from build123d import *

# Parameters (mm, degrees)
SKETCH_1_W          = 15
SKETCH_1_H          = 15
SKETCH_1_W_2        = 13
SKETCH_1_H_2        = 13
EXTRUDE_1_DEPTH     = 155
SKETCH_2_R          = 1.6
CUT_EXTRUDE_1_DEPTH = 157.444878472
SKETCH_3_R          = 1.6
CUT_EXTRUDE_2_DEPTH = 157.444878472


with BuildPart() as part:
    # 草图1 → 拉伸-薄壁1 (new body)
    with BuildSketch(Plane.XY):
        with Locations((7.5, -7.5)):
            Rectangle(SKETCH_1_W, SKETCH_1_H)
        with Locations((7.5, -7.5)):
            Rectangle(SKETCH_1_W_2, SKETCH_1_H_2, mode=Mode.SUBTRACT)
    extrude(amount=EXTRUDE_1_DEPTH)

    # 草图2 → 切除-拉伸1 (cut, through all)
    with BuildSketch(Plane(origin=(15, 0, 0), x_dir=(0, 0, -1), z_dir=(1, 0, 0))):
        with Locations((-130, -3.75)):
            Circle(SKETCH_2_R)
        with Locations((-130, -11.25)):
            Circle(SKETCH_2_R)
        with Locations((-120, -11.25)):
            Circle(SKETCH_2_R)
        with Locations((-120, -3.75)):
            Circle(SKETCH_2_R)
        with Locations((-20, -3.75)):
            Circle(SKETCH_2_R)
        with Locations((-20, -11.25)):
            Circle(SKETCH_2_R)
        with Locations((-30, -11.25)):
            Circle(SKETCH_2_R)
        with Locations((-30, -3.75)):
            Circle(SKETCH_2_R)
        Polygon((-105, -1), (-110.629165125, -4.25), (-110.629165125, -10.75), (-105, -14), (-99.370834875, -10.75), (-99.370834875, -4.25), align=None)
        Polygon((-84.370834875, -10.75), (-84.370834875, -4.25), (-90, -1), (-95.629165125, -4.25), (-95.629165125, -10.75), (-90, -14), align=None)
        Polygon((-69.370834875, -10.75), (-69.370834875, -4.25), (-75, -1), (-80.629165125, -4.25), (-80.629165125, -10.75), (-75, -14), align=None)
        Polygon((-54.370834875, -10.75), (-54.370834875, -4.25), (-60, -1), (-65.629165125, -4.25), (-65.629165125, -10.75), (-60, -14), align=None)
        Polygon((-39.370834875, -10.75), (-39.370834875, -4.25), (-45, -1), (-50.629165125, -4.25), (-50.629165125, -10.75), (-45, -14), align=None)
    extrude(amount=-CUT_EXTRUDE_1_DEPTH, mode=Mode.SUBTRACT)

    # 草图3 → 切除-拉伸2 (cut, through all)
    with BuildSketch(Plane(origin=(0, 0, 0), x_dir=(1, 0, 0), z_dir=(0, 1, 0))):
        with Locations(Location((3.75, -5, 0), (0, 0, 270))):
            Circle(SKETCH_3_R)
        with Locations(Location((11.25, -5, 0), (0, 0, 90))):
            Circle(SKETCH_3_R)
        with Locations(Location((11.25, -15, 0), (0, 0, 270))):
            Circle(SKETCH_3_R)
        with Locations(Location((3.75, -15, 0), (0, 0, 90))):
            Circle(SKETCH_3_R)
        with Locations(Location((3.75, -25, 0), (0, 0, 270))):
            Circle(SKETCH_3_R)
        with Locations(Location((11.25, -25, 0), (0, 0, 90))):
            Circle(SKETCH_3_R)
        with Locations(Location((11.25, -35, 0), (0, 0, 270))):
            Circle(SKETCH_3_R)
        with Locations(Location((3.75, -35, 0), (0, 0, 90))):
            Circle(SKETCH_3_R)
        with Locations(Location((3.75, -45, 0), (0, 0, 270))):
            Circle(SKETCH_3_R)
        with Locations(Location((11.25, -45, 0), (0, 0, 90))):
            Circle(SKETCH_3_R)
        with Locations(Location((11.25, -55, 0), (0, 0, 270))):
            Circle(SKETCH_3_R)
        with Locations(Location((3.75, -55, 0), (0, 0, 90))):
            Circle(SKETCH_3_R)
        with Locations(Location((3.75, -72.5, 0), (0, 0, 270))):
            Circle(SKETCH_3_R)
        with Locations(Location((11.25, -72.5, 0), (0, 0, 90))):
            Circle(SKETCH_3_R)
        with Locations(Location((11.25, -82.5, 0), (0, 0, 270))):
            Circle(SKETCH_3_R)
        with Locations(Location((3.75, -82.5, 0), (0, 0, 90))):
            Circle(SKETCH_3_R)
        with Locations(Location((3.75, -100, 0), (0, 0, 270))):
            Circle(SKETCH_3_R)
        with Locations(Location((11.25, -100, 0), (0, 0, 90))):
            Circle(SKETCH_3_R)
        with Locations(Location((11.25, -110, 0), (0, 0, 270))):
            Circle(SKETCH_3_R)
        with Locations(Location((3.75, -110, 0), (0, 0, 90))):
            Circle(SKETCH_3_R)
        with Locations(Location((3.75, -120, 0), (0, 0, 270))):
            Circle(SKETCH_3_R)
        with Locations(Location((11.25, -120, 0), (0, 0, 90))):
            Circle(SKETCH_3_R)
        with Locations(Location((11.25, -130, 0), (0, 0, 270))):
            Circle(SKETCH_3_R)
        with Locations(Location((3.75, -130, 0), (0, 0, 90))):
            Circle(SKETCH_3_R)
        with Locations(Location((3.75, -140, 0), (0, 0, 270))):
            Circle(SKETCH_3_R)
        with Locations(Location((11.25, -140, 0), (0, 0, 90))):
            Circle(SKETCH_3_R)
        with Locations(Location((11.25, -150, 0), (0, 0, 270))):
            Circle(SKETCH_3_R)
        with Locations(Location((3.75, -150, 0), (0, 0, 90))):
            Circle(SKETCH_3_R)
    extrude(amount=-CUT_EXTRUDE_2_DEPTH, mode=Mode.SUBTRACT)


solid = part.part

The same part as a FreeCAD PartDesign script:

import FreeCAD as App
import Part
import Sketcher
from FreeCAD import Vector
Q = App.Units.Quantity

doc = App.newDocument("Part")
body = doc.addObject("PartDesign::Body", "Body")

# Sketch on XY plane
sketch1 = doc.addObject("Sketcher::SketchObject", "Sketch")
body.addObject(sketch1)
sketch1.AttachmentSupport = (doc.XY_Plane, [""])
sketch1.MapMode = "FlatFace"
sketch1.addGeometry([
    Part.LineSegment(Vector(0, 0, 0), Vector(0, -15, 0)),  # 0
    Part.LineSegment(Vector(0, -15, 0), Vector(15, -15, 0)),  # 1
    Part.LineSegment(Vector(15, -15, 0), Vector(15, 0, 0)),  # 2
    Part.LineSegment(Vector(15, 0, 0), Vector(0, 0, 0)),  # 3
    Part.LineSegment(Vector(14, -14, 0), Vector(1, -14, 0)),  # 4
    Part.LineSegment(Vector(1, -14, 0), Vector(1, -1, 0)),  # 5
    Part.LineSegment(Vector(1, -1, 0), Vector(14, -1, 0)),  # 6
    Part.LineSegment(Vector(14, -1, 0), Vector(14, -14, 0)),  # 7
], False)
sketch1.addConstraint([
    Sketcher.Constraint("Coincident", 0, 2, 1, 1),
    Sketcher.Constraint("Coincident", 1, 2, 2, 1),
    Sketcher.Constraint("Coincident", 2, 2, 3, 1),
    Sketcher.Constraint("Coincident", 3, 2, 0, 1),
    Sketcher.Constraint("Coincident", 4, 2, 5, 1),
    Sketcher.Constraint("Coincident", 5, 2, 6, 1),
    Sketcher.Constraint("Coincident", 6, 2, 7, 1),
    Sketcher.Constraint("Coincident", 7, 2, 4, 1),
    Sketcher.Constraint("Vertical", 0),
    Sketcher.Constraint("Horizontal", 1),
    Sketcher.Constraint("Vertical", 2),
    Sketcher.Constraint("Horizontal", 3),
    Sketcher.Constraint("Horizontal", 4),
    Sketcher.Constraint("Vertical", 5),
    Sketcher.Constraint("Horizontal", 6),
    Sketcher.Constraint("Vertical", 7),
    Sketcher.Constraint("Coincident", 3, 2, -1, 1),
    Sketcher.Constraint("Equal", 3, 0),
    Sketcher.Constraint("Equal", 6, 5),
    Sketcher.Constraint("DistanceX", 1, 1, 1, 2, 15.0),
    Sketcher.Constraint("DistanceX", 4, 2, 4, 1, 13.0),
    Sketcher.Constraint("DistanceX", -1, 1, 4, 2, 1.0),
    Sketcher.Constraint("DistanceY", 4, 2, -1, 1, 14.0),
])
pad1 = doc.addObject("PartDesign::Pad", "Pad")
body.addObject(pad1)
pad1.Profile = sketch1
pad1.Length = 155

# Sketch on YZ plane
sketch2 = doc.addObject("Sketcher::SketchObject", "Sketch001")
body.addObject(sketch2)
sketch2.AttachmentSupport = (doc.YZ_Plane, [""])
sketch2.MapMode = "FlatFace"
sketch2.AttachmentOffset = App.Placement(Vector(0, 0, 15), App.Rotation())
sketch2.addGeometry([
    Part.Circle(Vector(-3.8, 130, 0), Vector(0, 0, 1), 1.6),  # 0
    Part.Circle(Vector(-11.2, 130, 0), Vector(0, 0, 1), 1.6),  # 1
    Part.Circle(Vector(-11.2, 120, 0), Vector(0, 0, 1), 1.6),  # 2
    Part.Circle(Vector(-3.8, 120, 0), Vector(0, 0, 1), 1.6),  # 3
    Part.Circle(Vector(-3.8, 20, 0), Vector(0, 0, 1), 1.6),  # 4
    Part.Circle(Vector(-11.2, 20, 0), Vector(0, 0, 1), 1.6),  # 5
    Part.Circle(Vector(-11.2, 30, 0), Vector(0, 0, 1), 1.6),  # 6
    Part.Circle(Vector(-3.8, 30, 0), Vector(0, 0, 1), 1.6),  # 7
    Part.LineSegment(Vector(-1, 105, 0), Vector(-4.2, 110.6, 0)),  # 8
    Part.LineSegment(Vector(-4.2, 110.6, 0), Vector(-10.8, 110.6, 0)),  # 9
    Part.LineSegment(Vector(-10.8, 110.6, 0), Vector(-14, 105, 0)),  # 10
    Part.LineSegment(Vector(-14, 105, 0), Vector(-10.8, 99.4, 0)),  # 11
    Part.LineSegment(Vector(-10.8, 99.4, 0), Vector(-4.2, 99.4, 0)),  # 12
    Part.LineSegment(Vector(-4.2, 99.4, 0), Vector(-1, 105, 0)),  # 13
    Part.LineSegment(Vector(-10.8, 84.4, 0), Vector(-4.2, 84.4, 0)),  # 14
    Part.LineSegment(Vector(-4.2, 84.4, 0), Vector(-1, 90, 0)),  # 15
    Part.LineSegment(Vector(-1, 90, 0), Vector(-4.2, 95.6, 0)),  # 16
    Part.LineSegment(Vector(-4.2, 95.6, 0), Vector(-10.8, 95.6, 0)),  # 17
    Part.LineSegment(Vector(-10.8, 95.6, 0), Vector(-14, 90, 0)),  # 18
    Part.LineSegment(Vector(-14, 90, 0), Vector(-10.8, 84.4, 0)),  # 19
    Part.LineSegment(Vector(-10.8, 69.4, 0), Vector(-4.2, 69.4, 0)),  # 20
    Part.LineSegment(Vector(-4.2, 69.4, 0), Vector(-1, 75, 0)),  # 21
    Part.LineSegment(Vector(-1, 75, 0), Vector(-4.2, 80.6, 0)),  # 22
    Part.LineSegment(Vector(-4.2, 80.6, 0), Vector(-10.8, 80.6, 0)),  # 23
    Part.LineSegment(Vector(-10.8, 80.6, 0), Vector(-14, 75, 0)),  # 24
    Part.LineSegment(Vector(-14, 75, 0), Vector(-10.8, 69.4, 0)),  # 25
    Part.LineSegment(Vector(-10.8, 54.4, 0), Vector(-4.2, 54.4, 0)),  # 26
    Part.LineSegment(Vector(-4.2, 54.4, 0), Vector(-1, 60, 0)),  # 27
    Part.LineSegment(Vector(-1, 60, 0), Vector(-4.2, 65.6, 0)),  # 28
    Part.LineSegment(Vector(-4.2, 65.6, 0), Vector(-10.8, 65.6, 0)),  # 29
    Part.LineSegment(Vector(-10.8, 65.6, 0), Vector(-14, 60, 0)),  # 30
    Part.LineSegment(Vector(-14, 60, 0), Vector(-10.8, 54.4, 0)),  # 31
    Part.LineSegment(Vector(-10.8, 39.4, 0), Vector(-4.2, 39.4, 0)),  # 32
    Part.LineSegment(Vector(-4.2, 39.4, 0), Vector(-1, 45, 0)),  # 33
    Part.LineSegment(Vector(-1, 45, 0), Vector(-4.2, 50.6, 0)),  # 34
    Part.LineSegment(Vector(-4.2, 50.6, 0), Vector(-10.8, 50.6, 0)),  # 35
    Part.LineSegment(Vector(-10.8, 50.6, 0), Vector(-14, 45, 0)),  # 36
    Part.LineSegment(Vector(-14, 45, 0), Vector(-10.8, 39.4, 0)),  # 37
], False)
sketch2.addConstraint([
    Sketcher.Constraint("Coincident", 8, 2, 9, 1),
    Sketcher.Constraint("Coincident", 9, 2, 10, 1),
    Sketcher.Constraint("Coincident", 10, 2, 11, 1),
    Sketcher.Constraint("Coincident", 11, 2, 12, 1),
    Sketcher.Constraint("Coincident", 12, 2, 13, 1),
    Sketcher.Constraint("Coincident", 13, 2, 8, 1),
    Sketcher.Constraint("Coincident", 14, 2, 15, 1),
    Sketcher.Constraint("Coincident", 15, 2, 16, 1),
    Sketcher.Constraint("Coincident", 16, 2, 17, 1),
    Sketcher.Constraint("Coincident", 17, 2, 18, 1),
    Sketcher.Constraint("Coincident", 18, 2, 19, 1),
    Sketcher.Constraint("Coincident", 19, 2, 14, 1),
    Sketcher.Constraint("Coincident", 20, 2, 21, 1),
    Sketcher.Constraint("Coincident", 21, 2, 22, 1),
    Sketcher.Constraint("Coincident", 22, 2, 23, 1),
    Sketcher.Constraint("Coincident", 23, 2, 24, 1),
    Sketcher.Constraint("Coincident", 24, 2, 25, 1),
    Sketcher.Constraint("Coincident", 25, 2, 20, 1),
    Sketcher.Constraint("Coincident", 26, 2, 27, 1),
    Sketcher.Constraint("Coincident", 27, 2, 28, 1),
    Sketcher.Constraint("Coincident", 28, 2, 29, 1),
    Sketcher.Constraint("Coincident", 29, 2, 30, 1),
    Sketcher.Constraint("Coincident", 30, 2, 31, 1),
    Sketcher.Constraint("Coincident", 31, 2, 26, 1),
    Sketcher.Constraint("Coincident", 32, 2, 33, 1),
    Sketcher.Constraint("Coincident", 33, 2, 34, 1),
    Sketcher.Constraint("Coincident", 34, 2, 35, 1),
    Sketcher.Constraint("Coincident", 35, 2, 36, 1),
    Sketcher.Constraint("Coincident", 36, 2, 37, 1),
    Sketcher.Constraint("Coincident", 37, 2, 32, 1),
    Sketcher.Constraint("Horizontal", 9),
    Sketcher.Constraint("Horizontal", 12),
    Sketcher.Constraint("Horizontal", 14),
    Sketcher.Constraint("Horizontal", 17),
    Sketcher.Constraint("Horizontal", 20),
    Sketcher.Constraint("Horizontal", 23),
    Sketcher.Constraint("Horizontal", 26),
    Sketcher.Constraint("Horizontal", 29),
    Sketcher.Constraint("Horizontal", 32),
    Sketcher.Constraint("Horizontal", 35),
    Sketcher.Constraint("Equal", 0, 1),
    Sketcher.Constraint("Equal", 1, 2),
    Sketcher.Constraint("Equal", 2, 3),
    Sketcher.Constraint("Equal", 3, 4),
    Sketcher.Constraint("Equal", 4, 5),
    Sketcher.Constraint("Equal", 5, 6),
    Sketcher.Constraint("Equal", 6, 7),
    Sketcher.Constraint("Parallel", 8, 11),
    Sketcher.Constraint("Parallel", 10, 13),
    Sketcher.Constraint("Parallel", 13, 15),
    Sketcher.Constraint("Parallel", 11, 16),
    Sketcher.Constraint("Parallel", 15, 18),
    Sketcher.Constraint("Parallel", 16, 19),
    Sketcher.Constraint("Parallel", 18, 21),
    Sketcher.Constraint("Parallel", 19, 22),
    Sketcher.Constraint("Parallel", 21, 24),
    Sketcher.Constraint("Parallel", 22, 25),
    Sketcher.Constraint("Parallel", 24, 27),
    Sketcher.Constraint("Parallel", 25, 28),
    Sketcher.Constraint("Parallel", 27, 30),
    Sketcher.Constraint("Parallel", 28, 31),
    Sketcher.Constraint("Parallel", 30, 33),
    Sketcher.Constraint("Parallel", 31, 34),
    Sketcher.Constraint("Parallel", 33, 36),
    Sketcher.Constraint("Parallel", 34, 37),
    Sketcher.Constraint("Horizontal", 0, 3, 1, 3),
    Sketcher.Constraint("Horizontal", 2, 3, 3, 3),
    Sketcher.Constraint("Horizontal", 4, 3, 5, 3),
    Sketcher.Constraint("Horizontal", 6, 3, 7, 3),
    Sketcher.Constraint("Horizontal", 10, 2, 13, 2),
    Sketcher.Constraint("Horizontal", 15, 2, 18, 2),
    Sketcher.Constraint("Horizontal", 21, 2, 24, 2),
    Sketcher.Constraint("Horizontal", 27, 2, 30, 2),
    Sketcher.Constraint("Horizontal", 33, 2, 36, 2),
    Sketcher.Constraint("Vertical", 1, 3, 2, 3),
    Sketcher.Constraint("Vertical", 0, 3, 3, 3),
    Sketcher.Constraint("Vertical", 3, 3, 4, 3),
    Sketcher.Constraint("Vertical", 2, 3, 5, 3),
    Sketcher.Constraint("Vertical", 5, 3, 6, 3),
    Sketcher.Constraint("Vertical", 4, 3, 7, 3),
    Sketcher.Constraint("Vertical", 9, 2, 11, 2),
    Sketcher.Constraint("Vertical", 8, 2, 12, 2),
    Sketcher.Constraint("Vertical", 12, 2, 14, 2),
    Sketcher.Constraint("Vertical", 13, 2, 15, 2),
    Sketcher.Constraint("Vertical", 14, 2, 16, 2),
    Sketcher.Constraint("Vertical", 11, 2, 17, 2),
    Sketcher.Constraint("Vertical", 16, 2, 20, 2),
    Sketcher.Constraint("Vertical", 15, 2, 21, 2),
    Sketcher.Constraint("Vertical", 20, 2, 22, 2),
    Sketcher.Constraint("Vertical", 19, 2, 23, 2),
    Sketcher.Constraint("Vertical", 22, 2, 26, 2),
    Sketcher.Constraint("Vertical", 21, 2, 27, 2),
    Sketcher.Constraint("Vertical", 26, 2, 28, 2),
    Sketcher.Constraint("Vertical", 25, 2, 29, 2),
    Sketcher.Constraint("Vertical", 28, 2, 32, 2),
    Sketcher.Constraint("Vertical", 27, 2, 33, 2),
    Sketcher.Constraint("Vertical", 32, 2, 34, 2),
    Sketcher.Constraint("Vertical", 31, 2, 35, 2),
    Sketcher.Constraint("Diameter", 0, 3.2),
    Sketcher.Constraint("Angle", 8, Q("120 deg")),
    Sketcher.Constraint("DistanceX", 9, 2, 9, 1, 6.5),
    Sketcher.Constraint("DistanceY", -1, 1, 0, 3, 130.0),
    Sketcher.Constraint("DistanceY", -1, 1, 2, 3, 120.0),
    Sketcher.Constraint("DistanceY", -1, 1, 4, 3, 20.0),
    Sketcher.Constraint("DistanceY", -1, 1, 6, 3, 30.0),
    Sketcher.Constraint("DistanceX", 10, 2, -1, 1, 14.0),
    Sketcher.Constraint("DistanceY", -1, 1, 10, 2, 105.0),
    Sketcher.Constraint("DistanceX", 13, 2, -1, 1, 1.0),
    Sketcher.Constraint("DistanceY", -1, 1, 15, 2, 90.0),
    Sketcher.Constraint("DistanceY", -1, 1, 21, 2, 75.0),
    Sketcher.Constraint("DistanceY", -1, 1, 27, 2, 60.0),
    Sketcher.Constraint("DistanceY", -1, 1, 33, 2, 45.0),
    Sketcher.Constraint("DistanceX", 2, 3, 8, 2, 7.0),
    Sketcher.Constraint("DistanceX", 9, 2, 3, 3, 7.0),
])
pocket1 = doc.addObject("PartDesign::Pocket", "Pocket")
body.addObject(pocket1)
pocket1.Profile = sketch2
pocket1.Type = "ThroughAll"

# Sketch on XZ plane
sketch3 = doc.addObject("Sketcher::SketchObject", "Sketch002")
body.addObject(sketch3)
sketch3.AttachmentSupport = (doc.XZ_Plane, [""])
sketch3.MapMode = "FlatFace"
sketch3.addGeometry([
    Part.Circle(Vector(3.8, 5, 0), Vector(0, 0, 1), 1.6),  # 0
    Part.Circle(Vector(11.2, 5, 0), Vector(0, 0, 1), 1.6),  # 1
    Part.Circle(Vector(11.2, 15, 0), Vector(0, 0, 1), 1.6),  # 2
    Part.Circle(Vector(3.8, 15, 0), Vector(0, 0, 1), 1.6),  # 3
    Part.Circle(Vector(3.8, 25, 0), Vector(0, 0, 1), 1.6),  # 4
    Part.Circle(Vector(11.2, 25, 0), Vector(0, 0, 1), 1.6),  # 5
    Part.Circle(Vector(11.2, 35, 0), Vector(0, 0, 1), 1.6),  # 6
    Part.Circle(Vector(3.8, 35, 0), Vector(0, 0, 1), 1.6),  # 7
    Part.Circle(Vector(3.8, 45, 0), Vector(0, 0, 1), 1.6),  # 8
    Part.Circle(Vector(11.2, 45, 0), Vector(0, 0, 1), 1.6),  # 9
    Part.Circle(Vector(11.2, 55, 0), Vector(0, 0, 1), 1.6),  # 10
    Part.Circle(Vector(3.8, 55, 0), Vector(0, 0, 1), 1.6),  # 11
    Part.Circle(Vector(3.8, 72.5, 0), Vector(0, 0, 1), 1.6),  # 12
    Part.Circle(Vector(11.2, 72.5, 0), Vector(0, 0, 1), 1.6),  # 13
    Part.Circle(Vector(11.2, 82.5, 0), Vector(0, 0, 1), 1.6),  # 14
    Part.Circle(Vector(3.8, 82.5, 0), Vector(0, 0, 1), 1.6),  # 15
    Part.Circle(Vector(3.8, 100, 0), Vector(0, 0, 1), 1.6),  # 16
    Part.Circle(Vector(11.2, 100, 0), Vector(0, 0, 1), 1.6),  # 17
    Part.Circle(Vector(11.2, 110, 0), Vector(0, 0, 1), 1.6),  # 18
    Part.Circle(Vector(3.8, 110, 0), Vector(0, 0, 1), 1.6),  # 19
    Part.Circle(Vector(3.8, 120, 0), Vector(0, 0, 1), 1.6),  # 20
    Part.Circle(Vector(11.2, 120, 0), Vector(0, 0, 1), 1.6),  # 21
    Part.Circle(Vector(11.2, 130, 0), Vector(0, 0, 1), 1.6),  # 22
    Part.Circle(Vector(3.8, 130, 0), Vector(0, 0, 1), 1.6),  # 23
    Part.Circle(Vector(3.8, 140, 0), Vector(0, 0, 1), 1.6),  # 24
    Part.Circle(Vector(11.2, 140, 0), Vector(0, 0, 1), 1.6),  # 25
    Part.Circle(Vector(11.2, 150, 0), Vector(0, 0, 1), 1.6),  # 26
    Part.Circle(Vector(3.8, 150, 0), Vector(0, 0, 1), 1.6),  # 27
], False)
sketch3.addConstraint([
    Sketcher.Constraint("Equal", 0, 1),
    Sketcher.Constraint("Equal", 1, 2),
    Sketcher.Constraint("Equal", 2, 3),
    Sketcher.Constraint("Equal", 3, 4),
    Sketcher.Constraint("Equal", 4, 5),
    Sketcher.Constraint("Equal", 5, 6),
    Sketcher.Constraint("Equal", 6, 7),
    Sketcher.Constraint("Equal", 7, 8),
    Sketcher.Constraint("Equal", 8, 9),
    Sketcher.Constraint("Equal", 9, 10),
    Sketcher.Constraint("Equal", 10, 11),
    Sketcher.Constraint("Equal", 11, 12),
    Sketcher.Constraint("Equal", 12, 13),
    Sketcher.Constraint("Equal", 13, 14),
    Sketcher.Constraint("Equal", 14, 15),
    Sketcher.Constraint("Equal", 15, 16),
    Sketcher.Constraint("Equal", 16, 17),
    Sketcher.Constraint("Equal", 17, 18),
    Sketcher.Constraint("Equal", 18, 19),
    Sketcher.Constraint("Equal", 19, 20),
    Sketcher.Constraint("Equal", 20, 21),
    Sketcher.Constraint("Equal", 21, 22),
    Sketcher.Constraint("Equal", 22, 23),
    Sketcher.Constraint("Equal", 23, 24),
    Sketcher.Constraint("Equal", 24, 25),
    Sketcher.Constraint("Equal", 25, 26),
    Sketcher.Constraint("Equal", 26, 27),
    Sketcher.Constraint("Horizontal", 0, 3, 1, 3),
    Sketcher.Constraint("Horizontal", 2, 3, 3, 3),
    Sketcher.Constraint("Horizontal", 4, 3, 5, 3),
    Sketcher.Constraint("Horizontal", 6, 3, 7, 3),
    Sketcher.Constraint("Horizontal", 8, 3, 9, 3),
    Sketcher.Constraint("Horizontal", 10, 3, 11, 3),
    Sketcher.Constraint("Horizontal", 12, 3, 13, 3),
    Sketcher.Constraint("Horizontal", 14, 3, 15, 3),
    Sketcher.Constraint("Horizontal", 16, 3, 17, 3),
    Sketcher.Constraint("Horizontal", 18, 3, 19, 3),
    Sketcher.Constraint("Horizontal", 20, 3, 21, 3),
    Sketcher.Constraint("Horizontal", 22, 3, 23, 3),
    Sketcher.Constraint("Horizontal", 24, 3, 25, 3),
    Sketcher.Constraint("Horizontal", 26, 3, 27, 3),
    Sketcher.Constraint("Vertical", 1, 3, 2, 3),
    Sketcher.Constraint("Vertical", 0, 3, 3, 3),
    Sketcher.Constraint("Vertical", 3, 3, 4, 3),
    Sketcher.Constraint("Vertical", 2, 3, 5, 3),
    Sketcher.Constraint("Vertical", 5, 3, 6, 3),
    Sketcher.Constraint("Vertical", 4, 3, 7, 3),
    Sketcher.Constraint("Vertical", 7, 3, 8, 3),
    Sketcher.Constraint("Vertical", 6, 3, 9, 3),
    Sketcher.Constraint("Vertical", 9, 3, 10, 3),
    Sketcher.Constraint("Vertical", 8, 3, 11, 3),
    Sketcher.Constraint("Vertical", 11, 3, 12, 3),
    Sketcher.Constraint("Vertical", 10, 3, 13, 3),
    Sketcher.Constraint("Vertical", 13, 3, 14, 3),
    Sketcher.Constraint("Vertical", 12, 3, 15, 3),
    Sketcher.Constraint("Vertical", 15, 3, 16, 3),
    Sketcher.Constraint("Vertical", 14, 3, 17, 3),
    Sketcher.Constraint("Vertical", 17, 3, 18, 3),
    Sketcher.Constraint("Vertical", 16, 3, 19, 3),
    Sketcher.Constraint("Vertical", 19, 3, 20, 3),
    Sketcher.Constraint("Vertical", 18, 3, 21, 3),
    Sketcher.Constraint("Vertical", 21, 3, 22, 3),
    Sketcher.Constraint("Vertical", 20, 3, 23, 3),
    Sketcher.Constraint("Vertical", 23, 3, 24, 3),
    Sketcher.Constraint("Vertical", 22, 3, 25, 3),
    Sketcher.Constraint("Vertical", 25, 3, 26, 3),
    Sketcher.Constraint("Vertical", 24, 3, 27, 3),
    Sketcher.Constraint("Diameter", 0, 3.2),
    Sketcher.Constraint("DistanceY", -1, 1, 0, 3, 5.0),
    Sketcher.Constraint("DistanceY", -1, 1, 2, 3, 15.0),
    Sketcher.Constraint("DistanceY", -1, 1, 4, 3, 25.0),
    Sketcher.Constraint("DistanceY", -1, 1, 6, 3, 35.0),
    Sketcher.Constraint("DistanceY", -1, 1, 8, 3, 45.0),
    Sketcher.Constraint("DistanceY", -1, 1, 10, 3, 55.0),
    Sketcher.Constraint("DistanceY", -1, 1, 16, 3, 100.0),
    Sketcher.Constraint("DistanceY", -1, 1, 18, 3, 110.0),
    Sketcher.Constraint("DistanceY", -1, 1, 20, 3, 120.0),
    Sketcher.Constraint("DistanceY", -1, 1, 22, 3, 130.0),
    Sketcher.Constraint("DistanceY", -1, 1, 24, 3, 140.0),
    Sketcher.Constraint("DistanceY", -1, 1, 26, 3, 150.0),
    Sketcher.Constraint("DistanceY", 13, 3, 14, 3, 10.0),
    Sketcher.Constraint("DistanceY", -1, 1, 12, 3, 72.5),
    Sketcher.Constraint("DistanceX", 0, 3, 1, 3, 7.5),
    Sketcher.Constraint("DistanceX", -1, 1, 0, 3, 3.75),
])
pocket2 = doc.addObject("PartDesign::Pocket", "Pocket001")
body.addObject(pocket2)
pocket2.Profile = sketch3
pocket2.Type = "ThroughAll"
pocket2.Reversed = True

doc.recompute()
